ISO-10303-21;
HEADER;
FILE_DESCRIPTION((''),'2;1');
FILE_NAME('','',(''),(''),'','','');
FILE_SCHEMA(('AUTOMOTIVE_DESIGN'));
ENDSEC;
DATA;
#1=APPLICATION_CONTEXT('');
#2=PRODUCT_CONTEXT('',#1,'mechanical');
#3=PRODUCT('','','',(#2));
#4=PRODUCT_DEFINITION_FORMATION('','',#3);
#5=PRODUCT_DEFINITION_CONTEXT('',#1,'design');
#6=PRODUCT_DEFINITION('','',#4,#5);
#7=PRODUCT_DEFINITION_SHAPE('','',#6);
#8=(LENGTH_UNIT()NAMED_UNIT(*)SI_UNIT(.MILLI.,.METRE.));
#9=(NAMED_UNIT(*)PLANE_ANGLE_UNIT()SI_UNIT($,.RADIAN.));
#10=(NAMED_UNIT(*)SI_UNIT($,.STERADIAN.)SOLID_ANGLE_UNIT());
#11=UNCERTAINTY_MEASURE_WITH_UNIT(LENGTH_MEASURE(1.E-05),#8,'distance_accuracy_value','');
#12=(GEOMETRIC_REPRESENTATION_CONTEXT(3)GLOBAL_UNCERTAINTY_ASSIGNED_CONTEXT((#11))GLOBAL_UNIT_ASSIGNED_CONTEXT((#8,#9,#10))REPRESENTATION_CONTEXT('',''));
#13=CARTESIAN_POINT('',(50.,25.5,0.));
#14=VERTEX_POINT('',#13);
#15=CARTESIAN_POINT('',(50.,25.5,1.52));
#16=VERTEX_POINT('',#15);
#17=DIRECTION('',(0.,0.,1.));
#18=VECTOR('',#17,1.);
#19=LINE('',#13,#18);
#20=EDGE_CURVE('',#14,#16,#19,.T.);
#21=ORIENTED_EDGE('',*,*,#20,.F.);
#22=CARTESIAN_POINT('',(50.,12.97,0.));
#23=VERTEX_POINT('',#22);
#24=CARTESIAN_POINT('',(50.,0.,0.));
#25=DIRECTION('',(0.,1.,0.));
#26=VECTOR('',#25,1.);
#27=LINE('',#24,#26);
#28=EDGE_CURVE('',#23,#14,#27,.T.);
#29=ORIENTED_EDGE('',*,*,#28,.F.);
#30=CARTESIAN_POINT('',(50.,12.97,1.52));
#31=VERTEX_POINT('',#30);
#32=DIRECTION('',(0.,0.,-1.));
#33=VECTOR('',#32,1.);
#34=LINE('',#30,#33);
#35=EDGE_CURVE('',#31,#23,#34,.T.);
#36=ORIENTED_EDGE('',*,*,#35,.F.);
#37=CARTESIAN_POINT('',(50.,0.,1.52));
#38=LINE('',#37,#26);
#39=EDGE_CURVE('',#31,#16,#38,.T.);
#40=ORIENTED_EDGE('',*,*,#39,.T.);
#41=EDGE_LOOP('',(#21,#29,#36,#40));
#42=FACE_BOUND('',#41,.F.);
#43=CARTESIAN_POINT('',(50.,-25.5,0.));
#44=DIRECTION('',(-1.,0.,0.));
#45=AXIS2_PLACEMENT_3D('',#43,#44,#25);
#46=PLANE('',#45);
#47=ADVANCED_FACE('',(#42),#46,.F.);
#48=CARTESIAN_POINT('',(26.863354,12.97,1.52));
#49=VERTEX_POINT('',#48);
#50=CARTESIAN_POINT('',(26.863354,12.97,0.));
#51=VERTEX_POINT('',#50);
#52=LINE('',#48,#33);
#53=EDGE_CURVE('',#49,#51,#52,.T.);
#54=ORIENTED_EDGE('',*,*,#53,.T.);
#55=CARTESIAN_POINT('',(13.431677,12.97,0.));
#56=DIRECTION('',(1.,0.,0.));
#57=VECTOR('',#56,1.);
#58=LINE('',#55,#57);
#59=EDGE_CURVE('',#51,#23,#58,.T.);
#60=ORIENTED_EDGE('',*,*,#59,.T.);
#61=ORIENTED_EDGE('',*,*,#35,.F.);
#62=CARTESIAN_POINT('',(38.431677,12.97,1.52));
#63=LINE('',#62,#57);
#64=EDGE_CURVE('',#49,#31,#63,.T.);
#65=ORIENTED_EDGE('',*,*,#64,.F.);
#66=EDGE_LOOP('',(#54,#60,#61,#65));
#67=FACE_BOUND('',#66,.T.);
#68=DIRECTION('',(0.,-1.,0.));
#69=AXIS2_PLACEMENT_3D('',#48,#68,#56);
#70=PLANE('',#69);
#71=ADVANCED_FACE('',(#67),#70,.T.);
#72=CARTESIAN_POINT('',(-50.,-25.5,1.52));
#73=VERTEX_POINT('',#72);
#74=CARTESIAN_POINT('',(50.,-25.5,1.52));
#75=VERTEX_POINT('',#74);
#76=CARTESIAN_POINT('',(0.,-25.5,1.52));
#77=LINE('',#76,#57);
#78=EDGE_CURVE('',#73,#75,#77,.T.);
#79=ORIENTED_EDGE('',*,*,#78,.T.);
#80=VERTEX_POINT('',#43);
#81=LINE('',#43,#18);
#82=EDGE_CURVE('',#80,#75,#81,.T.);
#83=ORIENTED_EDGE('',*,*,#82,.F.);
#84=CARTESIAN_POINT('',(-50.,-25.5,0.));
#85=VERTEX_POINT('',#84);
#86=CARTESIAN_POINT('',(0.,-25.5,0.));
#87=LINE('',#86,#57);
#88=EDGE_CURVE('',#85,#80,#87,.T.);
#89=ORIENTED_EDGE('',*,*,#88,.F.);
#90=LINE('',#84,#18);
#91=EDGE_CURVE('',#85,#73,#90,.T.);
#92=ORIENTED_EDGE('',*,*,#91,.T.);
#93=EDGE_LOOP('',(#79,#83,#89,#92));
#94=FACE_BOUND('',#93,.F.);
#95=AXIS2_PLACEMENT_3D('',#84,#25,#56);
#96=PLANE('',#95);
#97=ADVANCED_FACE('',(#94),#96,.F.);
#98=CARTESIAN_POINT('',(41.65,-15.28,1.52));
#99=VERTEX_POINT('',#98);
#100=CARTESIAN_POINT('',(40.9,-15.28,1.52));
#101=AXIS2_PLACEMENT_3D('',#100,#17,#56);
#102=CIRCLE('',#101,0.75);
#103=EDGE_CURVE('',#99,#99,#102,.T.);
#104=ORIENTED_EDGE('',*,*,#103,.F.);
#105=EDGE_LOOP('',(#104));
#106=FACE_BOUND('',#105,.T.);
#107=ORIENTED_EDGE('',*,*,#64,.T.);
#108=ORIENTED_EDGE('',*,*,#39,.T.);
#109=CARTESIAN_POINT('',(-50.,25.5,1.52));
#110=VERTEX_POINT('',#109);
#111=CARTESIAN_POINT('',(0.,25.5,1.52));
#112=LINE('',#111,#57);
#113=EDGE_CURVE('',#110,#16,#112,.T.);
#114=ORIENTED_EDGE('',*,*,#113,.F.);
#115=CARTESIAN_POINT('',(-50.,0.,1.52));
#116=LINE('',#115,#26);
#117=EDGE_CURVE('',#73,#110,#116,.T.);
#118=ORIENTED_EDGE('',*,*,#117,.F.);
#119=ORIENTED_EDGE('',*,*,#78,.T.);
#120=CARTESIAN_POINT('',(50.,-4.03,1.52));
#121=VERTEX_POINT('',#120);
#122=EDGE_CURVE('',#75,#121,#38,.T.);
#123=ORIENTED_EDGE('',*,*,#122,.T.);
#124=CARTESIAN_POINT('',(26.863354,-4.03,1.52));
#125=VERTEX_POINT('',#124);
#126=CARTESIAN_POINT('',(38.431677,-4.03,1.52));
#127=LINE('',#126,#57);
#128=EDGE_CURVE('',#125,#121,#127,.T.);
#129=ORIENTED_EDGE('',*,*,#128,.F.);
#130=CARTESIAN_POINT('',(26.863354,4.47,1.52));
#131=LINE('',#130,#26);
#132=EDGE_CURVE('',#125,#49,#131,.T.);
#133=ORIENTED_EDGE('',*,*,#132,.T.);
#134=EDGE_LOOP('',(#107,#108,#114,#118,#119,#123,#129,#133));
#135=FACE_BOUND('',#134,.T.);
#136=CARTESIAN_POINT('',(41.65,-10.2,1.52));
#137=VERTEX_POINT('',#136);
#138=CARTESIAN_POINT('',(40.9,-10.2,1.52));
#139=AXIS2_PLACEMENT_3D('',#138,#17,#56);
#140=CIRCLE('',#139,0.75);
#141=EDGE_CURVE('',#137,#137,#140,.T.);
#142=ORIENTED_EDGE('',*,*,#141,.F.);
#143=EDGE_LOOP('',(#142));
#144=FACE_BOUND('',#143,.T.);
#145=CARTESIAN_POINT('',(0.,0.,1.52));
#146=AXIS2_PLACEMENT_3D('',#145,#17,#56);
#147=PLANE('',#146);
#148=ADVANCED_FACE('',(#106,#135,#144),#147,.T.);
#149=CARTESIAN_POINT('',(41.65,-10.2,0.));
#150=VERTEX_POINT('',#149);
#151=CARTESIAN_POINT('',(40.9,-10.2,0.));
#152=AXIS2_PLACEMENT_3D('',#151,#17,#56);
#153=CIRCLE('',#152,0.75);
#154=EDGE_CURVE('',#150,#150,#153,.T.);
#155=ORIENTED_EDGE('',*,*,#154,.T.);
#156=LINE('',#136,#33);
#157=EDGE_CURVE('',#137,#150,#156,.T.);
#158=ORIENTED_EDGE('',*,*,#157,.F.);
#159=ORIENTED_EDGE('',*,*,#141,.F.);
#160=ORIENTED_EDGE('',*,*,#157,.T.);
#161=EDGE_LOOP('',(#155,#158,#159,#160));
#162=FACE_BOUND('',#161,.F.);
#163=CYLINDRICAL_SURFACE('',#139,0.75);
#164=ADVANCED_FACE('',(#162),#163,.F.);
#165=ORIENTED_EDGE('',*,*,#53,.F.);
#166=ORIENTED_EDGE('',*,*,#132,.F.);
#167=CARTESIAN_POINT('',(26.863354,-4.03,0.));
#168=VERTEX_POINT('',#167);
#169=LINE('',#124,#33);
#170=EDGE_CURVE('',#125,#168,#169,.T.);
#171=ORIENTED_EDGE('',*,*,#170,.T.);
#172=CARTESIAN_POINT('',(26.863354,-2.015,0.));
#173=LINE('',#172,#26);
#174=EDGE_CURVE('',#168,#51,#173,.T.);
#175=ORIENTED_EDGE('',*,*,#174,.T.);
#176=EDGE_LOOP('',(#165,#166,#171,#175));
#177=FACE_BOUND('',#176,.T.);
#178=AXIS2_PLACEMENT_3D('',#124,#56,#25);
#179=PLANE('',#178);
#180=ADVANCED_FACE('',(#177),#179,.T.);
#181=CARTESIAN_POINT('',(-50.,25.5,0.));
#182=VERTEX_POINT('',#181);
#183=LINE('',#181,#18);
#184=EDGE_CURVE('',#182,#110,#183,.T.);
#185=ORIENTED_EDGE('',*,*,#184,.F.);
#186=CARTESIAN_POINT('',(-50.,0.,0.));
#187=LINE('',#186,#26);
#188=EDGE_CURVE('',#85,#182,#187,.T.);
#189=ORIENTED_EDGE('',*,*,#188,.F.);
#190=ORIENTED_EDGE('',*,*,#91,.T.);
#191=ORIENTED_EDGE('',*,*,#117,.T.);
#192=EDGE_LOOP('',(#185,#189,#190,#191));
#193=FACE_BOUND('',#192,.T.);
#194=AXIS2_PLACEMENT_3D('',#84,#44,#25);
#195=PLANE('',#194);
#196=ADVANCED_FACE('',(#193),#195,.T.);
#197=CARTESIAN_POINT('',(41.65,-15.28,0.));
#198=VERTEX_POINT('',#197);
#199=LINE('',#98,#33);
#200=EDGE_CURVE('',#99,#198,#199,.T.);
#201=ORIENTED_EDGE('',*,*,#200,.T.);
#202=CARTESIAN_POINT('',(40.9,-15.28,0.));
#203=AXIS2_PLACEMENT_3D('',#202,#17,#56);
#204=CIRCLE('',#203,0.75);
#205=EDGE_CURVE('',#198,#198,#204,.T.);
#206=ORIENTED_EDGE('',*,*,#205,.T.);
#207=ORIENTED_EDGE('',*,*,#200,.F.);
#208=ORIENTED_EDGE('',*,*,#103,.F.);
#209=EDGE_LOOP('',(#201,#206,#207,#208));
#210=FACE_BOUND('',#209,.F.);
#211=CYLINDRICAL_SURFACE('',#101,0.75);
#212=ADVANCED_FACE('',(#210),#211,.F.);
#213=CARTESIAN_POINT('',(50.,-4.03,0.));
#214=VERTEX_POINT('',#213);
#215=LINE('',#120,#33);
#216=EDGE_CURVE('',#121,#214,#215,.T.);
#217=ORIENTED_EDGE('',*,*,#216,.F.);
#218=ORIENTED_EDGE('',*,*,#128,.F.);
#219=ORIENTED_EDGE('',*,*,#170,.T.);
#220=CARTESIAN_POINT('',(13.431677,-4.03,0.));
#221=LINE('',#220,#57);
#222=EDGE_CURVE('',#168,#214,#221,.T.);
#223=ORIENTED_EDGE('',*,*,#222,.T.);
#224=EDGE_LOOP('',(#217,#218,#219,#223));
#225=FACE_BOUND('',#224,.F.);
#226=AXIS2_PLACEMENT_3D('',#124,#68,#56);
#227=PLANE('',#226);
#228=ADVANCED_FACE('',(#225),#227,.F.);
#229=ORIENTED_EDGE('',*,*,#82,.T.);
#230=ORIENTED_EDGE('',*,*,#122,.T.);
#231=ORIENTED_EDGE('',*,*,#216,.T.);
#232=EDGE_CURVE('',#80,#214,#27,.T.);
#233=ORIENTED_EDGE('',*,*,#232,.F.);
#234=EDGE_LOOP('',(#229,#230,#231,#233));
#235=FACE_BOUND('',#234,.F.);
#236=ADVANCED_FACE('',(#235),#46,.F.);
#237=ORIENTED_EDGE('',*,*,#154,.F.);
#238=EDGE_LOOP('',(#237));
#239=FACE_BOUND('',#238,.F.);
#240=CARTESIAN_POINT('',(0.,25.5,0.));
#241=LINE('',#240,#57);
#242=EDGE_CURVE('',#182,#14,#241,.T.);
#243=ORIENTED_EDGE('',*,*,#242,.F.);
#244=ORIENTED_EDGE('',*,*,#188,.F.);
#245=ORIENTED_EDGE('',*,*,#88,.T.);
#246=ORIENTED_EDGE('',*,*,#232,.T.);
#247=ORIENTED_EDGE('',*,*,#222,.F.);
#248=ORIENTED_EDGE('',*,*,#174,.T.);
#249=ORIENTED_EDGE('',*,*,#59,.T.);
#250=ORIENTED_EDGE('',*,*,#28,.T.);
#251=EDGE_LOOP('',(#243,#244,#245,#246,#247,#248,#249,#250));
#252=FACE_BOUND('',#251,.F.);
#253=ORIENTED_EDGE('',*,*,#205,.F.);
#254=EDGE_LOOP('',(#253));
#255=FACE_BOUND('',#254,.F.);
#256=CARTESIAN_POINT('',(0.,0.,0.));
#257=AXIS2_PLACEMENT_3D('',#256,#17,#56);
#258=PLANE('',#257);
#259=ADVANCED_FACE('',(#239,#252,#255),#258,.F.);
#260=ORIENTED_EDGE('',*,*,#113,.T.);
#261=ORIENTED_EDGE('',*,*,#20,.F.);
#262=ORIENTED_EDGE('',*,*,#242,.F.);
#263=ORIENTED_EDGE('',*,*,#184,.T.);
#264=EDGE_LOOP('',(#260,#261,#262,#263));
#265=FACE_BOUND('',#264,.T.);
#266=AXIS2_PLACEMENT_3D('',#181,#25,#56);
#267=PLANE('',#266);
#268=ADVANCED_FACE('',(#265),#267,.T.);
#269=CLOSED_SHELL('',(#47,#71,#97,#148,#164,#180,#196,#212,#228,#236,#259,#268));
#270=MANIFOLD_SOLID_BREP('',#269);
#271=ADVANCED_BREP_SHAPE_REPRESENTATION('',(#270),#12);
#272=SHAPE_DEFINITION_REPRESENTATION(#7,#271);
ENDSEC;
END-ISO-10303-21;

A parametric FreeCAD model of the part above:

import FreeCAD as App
import Part
import Sketcher

V = App.Vector
Q = App.Units.Quantity


def add_polygon(sketch, points):
    """Adds a closed chain of lines whose ends are joined by coincident constraints."""
    first, n = sketch.GeometryCount, len(points)
    for a, b in zip(points, points[1:] + points[:1]):
        sketch.addGeometry(Part.LineSegment(App.Vector(*a, 0), App.Vector(*b, 0)), False)
    for i in range(n):
        sketch.addConstraint(Sketcher.Constraint("Coincident", first + i, 2, first + (i + 1) % n, 1))

doc = App.newDocument("Part")
params = doc.addObject("Spreadsheet::Sheet", "Params")
for row, (alias, value) in enumerate([
    ("sketch1_width", "100 mm"),
    ("sketch1_height", "51 mm"),
    ("pad1_length", "1.52 mm"),
    ("sketch2_diameter", "1.5 mm"),
    ("sketch2_height", "17 mm"),
    ("pocket1_length", "25 mm"),
], start=1):
    params.set(f"A{row}", alias)
    params.set(f"B{row}", "=" + value)
    params.setAlias(f"B{row}", alias)

body = doc.addObject("PartDesign::Body", "Body")

sketch1 = body.newObject("Sketcher::SketchObject", "Sketch")
sketch1.AttachmentSupport = (doc.getObject("XY_Plane"), [""])
sketch1.MapMode = "FlatFace"
add_polygon(sketch1, [(-50, 26), (-50, -26), (50, -26), (50, 26)])
sketch1.addConstraint(Sketcher.Constraint("Vertical", 0))
sketch1.addConstraint(Sketcher.Constraint("Horizontal", 1))
sketch1.addConstraint(Sketcher.Constraint("Vertical", 2))
sketch1.addConstraint(Sketcher.Constraint("Horizontal", 3))
sketch1.addConstraint(Sketcher.Constraint("Symmetric", 0, 2, 2, 2, -1, 1))
sketch1.addConstraint(Sketcher.Constraint("DistanceX", 1, 1, 1, 2, Q("100 mm")))
sketch1.addConstraint(Sketcher.Constraint("DistanceY", 0, 2, 0, 1, Q("51 mm")))
sketch1.setExpression("Constraints[9]", "Params.sketch1_width")
sketch1.setExpression("Constraints[10]", "Params.sketch1_height")
pad1 = body.newObject("PartDesign::Pad", "Pad")
pad1.Profile = sketch1
pad1.setExpression("Length", "Params.pad1_length")

sketch2 = body.newObject("Sketcher::SketchObject", "Sketch001")
sketch2.AttachmentSupport = (doc.getObject("XY_Plane"), [""])
sketch2.MapMode = "FlatFace"
sketch2.AttachmentOffset = App.Placement(V(0, 0, 1.52), App.Rotation())
add_polygon(sketch2, [(26.9, 13), (26.9, -4), (50, -4), (50, 13)])
sketch2.addGeometry(Part.Circle(V(40.9, -10.2, 0), V(0, 0, 1), 0.8), False)
sketch2.addGeometry(Part.Circle(V(40.9, -15.3, 0), V(0, 0, 1), 0.8), False)
sketch2.addConstraint(Sketcher.Constraint("Vertical", 0))
sketch2.addConstraint(Sketcher.Constraint("Horizontal", 1))
sketch2.addConstraint(Sketcher.Constraint("Vertical", 2))
sketch2.addConstraint(Sketcher.Constraint("Horizontal", 3))
sketch2.addConstraint(Sketcher.Constraint("Equal", 4, 5))
sketch2.addConstraint(Sketcher.Constraint("Vertical", 4, 3, 5, 3))
sketch2.addConstraint(Sketcher.Constraint("Diameter", 4, Q("1.5 mm")))
sketch2.addConstraint(Sketcher.Constraint("DistanceY", 0, 2, 0, 1, Q("17 mm")))
sketch2.addConstraint(Sketcher.Constraint("DistanceX", -1, 1, 1, 2, Q("50 mm")))
sketch2.addConstraint(Sketcher.Constraint("DistanceX", -1, 1, 4, 3, Q("40.9 mm")))
sketch2.addConstraint(Sketcher.Constraint("DistanceY", 4, 3, -1, 1, Q("10.2 mm")))
sketch2.addConstraint(Sketcher.Constraint("DistanceY", 5, 3, -1, 1, Q("15.28 mm")))
sketch2.addConstraint(Sketcher.Constraint("DistanceY", 0, 2, -1, 1, Q("4.03 mm")))
sketch2.addConstraint(Sketcher.Constraint("DistanceX", 1, 1, 1, 2, Q("23.136646 mm")))
sketch2.setExpression("Constraints[10]", "Params.sketch2_diameter")
sketch2.setExpression("Constraints[11]", "Params.sketch2_height")
pocket1 = body.newObject("PartDesign::Pocket", "Pocket")
pocket1.Profile = sketch2
pocket1.setExpression("Length", "Params.pocket1_length")

doc.recompute()
